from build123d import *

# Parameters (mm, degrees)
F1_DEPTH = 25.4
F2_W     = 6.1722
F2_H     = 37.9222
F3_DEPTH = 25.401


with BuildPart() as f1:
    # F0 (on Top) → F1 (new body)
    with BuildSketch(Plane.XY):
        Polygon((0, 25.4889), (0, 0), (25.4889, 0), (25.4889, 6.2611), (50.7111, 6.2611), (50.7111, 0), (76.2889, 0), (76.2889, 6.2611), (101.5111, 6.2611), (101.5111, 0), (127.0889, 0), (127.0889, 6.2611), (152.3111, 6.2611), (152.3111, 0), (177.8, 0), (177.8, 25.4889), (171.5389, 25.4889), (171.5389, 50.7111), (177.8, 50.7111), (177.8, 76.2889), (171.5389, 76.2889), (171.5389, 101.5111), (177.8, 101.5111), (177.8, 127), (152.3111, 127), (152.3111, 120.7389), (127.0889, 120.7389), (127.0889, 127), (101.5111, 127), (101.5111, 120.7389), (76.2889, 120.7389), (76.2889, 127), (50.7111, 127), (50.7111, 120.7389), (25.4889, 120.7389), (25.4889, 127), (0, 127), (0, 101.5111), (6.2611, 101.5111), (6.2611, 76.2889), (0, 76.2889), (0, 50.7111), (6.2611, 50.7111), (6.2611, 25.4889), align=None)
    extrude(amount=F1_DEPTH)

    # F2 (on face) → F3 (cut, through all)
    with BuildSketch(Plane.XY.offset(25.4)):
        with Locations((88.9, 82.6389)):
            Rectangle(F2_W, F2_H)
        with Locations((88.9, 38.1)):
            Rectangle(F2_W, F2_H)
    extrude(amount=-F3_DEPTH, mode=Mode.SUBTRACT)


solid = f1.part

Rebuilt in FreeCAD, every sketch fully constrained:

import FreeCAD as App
import Part
import Sketcher
Q = App.Units.Quantity


def add_polygon(sketch, points):
    """Adds a closed chain of lines whose ends are joined by coincident constraints."""
    first, n = sketch.GeometryCount, len(points)
    for a, b in zip(points, points[1:] + points[:1]):
        sketch.addGeometry(Part.LineSegment(App.Vector(*a, 0), App.Vector(*b, 0)), False)
    for i in range(n):
        sketch.addConstraint(Sketcher.Constraint("Coincident", first + i, 2, first + (i + 1) % n, 1))

doc = App.newDocument("Part")
params = doc.addObject("Spreadsheet::Sheet", "Params")
for row, (alias, value) in enumerate([
    ("sketch1_width", "0.993 in"),
    ("pad1_length", "1 in"),
    ("sketch2_width", "0.243 in"),
    ("sketch2_height", "1.493 in"),
], start=1):
    params.set(f"A{row}", alias)
    params.set(f"B{row}", "=" + value)
    params.setAlias(f"B{row}", alias)

body = doc.addObject("PartDesign::Body", "Body")

sketch1 = body.newObject("Sketcher::SketchObject", "Sketch")
sketch1.AttachmentSupport = (doc.getObject("XY_Plane"), [""])
sketch1.MapMode = "FlatFace"
add_polygon(sketch1, [(0, 25), (0, 0), (25, 0), (25, 6), (51, 6), (51, 0), (76, 0), (76, 6), (102, 6), (102, 0), (127, 0), (127, 6), (152, 6), (152, 0), (178, 0), (178, 25), (172, 25), (172, 51), (178, 51), (178, 76), (172, 76), (172, 102), (178, 102), (178, 127), (152, 127), (152, 121), (127, 121), (127, 127), (102, 127), (102, 121), (76, 121), (76, 127), (51, 127), (51, 121), (25, 121), (25, 127), (0, 127), (0, 102), (6, 102), (6, 76), (0, 76), (0, 51), (6, 51), (6, 25)])
sketch1.addConstraint([
    Sketcher.Constraint("Vertical", 0),
    Sketcher.Constraint("Horizontal", 1),
    Sketcher.Constraint("Vertical", 2),
    Sketcher.Constraint("Horizontal", 3),
    Sketcher.Constraint("Vertical", 4),
    Sketcher.Constraint("Horizontal", 5),
    Sketcher.Constraint("Vertical", 6),
    Sketcher.Constraint("Horizontal", 7),
    Sketcher.Constraint("Vertical", 8),
    Sketcher.Constraint("Horizontal", 9),
    Sketcher.Constraint("Vertical", 10),
    Sketcher.Constraint("Horizontal", 11),
    Sketcher.Constraint("Vertical", 12),
    Sketcher.Constraint("Horizontal", 13),
    Sketcher.Constraint("Vertical", 14),
    Sketcher.Constraint("Horizontal", 15),
    Sketcher.Constraint("Vertical", 16),
    Sketcher.Constraint("Horizontal", 17),
    Sketcher.Constraint("Vertical", 18),
    Sketcher.Constraint("Horizontal", 19),
    Sketcher.Constraint("Vertical", 20),
    Sketcher.Constraint("Horizontal", 21),
    Sketcher.Constraint("Vertical", 22),
    Sketcher.Constraint("Horizontal", 23),
    Sketcher.Constraint("Vertical", 24),
    Sketcher.Constraint("Horizontal", 25),
    Sketcher.Constraint("Vertical", 26),
    Sketcher.Constraint("Horizontal", 27),
    Sketcher.Constraint("Vertical", 28),
    Sketcher.Constraint("Horizontal", 29),
    Sketcher.Constraint("Vertical", 30),
    Sketcher.Constraint("Horizontal", 31),
    Sketcher.Constraint("Vertical", 32),
    Sketcher.Constraint("Horizontal", 33),
    Sketcher.Constraint("Vertical", 34),
    Sketcher.Constraint("Horizontal", 35),
    Sketcher.Constraint("Vertical", 36),
    Sketcher.Constraint("Horizontal", 37),
    Sketcher.Constraint("Vertical", 38),
    Sketcher.Constraint("Horizontal", 39),
    Sketcher.Constraint("Vertical", 40),
    Sketcher.Constraint("Horizontal", 41),
    Sketcher.Constraint("Vertical", 42),
    Sketcher.Constraint("Horizontal", 43),
    Sketcher.Constraint("Coincident", 0, 2, -1, 1),
    Sketcher.Constraint("PointOnObject", 4, 2, -1),
    Sketcher.Constraint("PointOnObject", 8, 2, -1),
    Sketcher.Constraint("PointOnObject", 12, 2, -1),
    Sketcher.Constraint("PointOnObject", 35, 2, -2),
    Sketcher.Constraint("PointOnObject", 39, 2, -2),
    Sketcher.Constraint("Horizontal", 3, 2, 6, 2),
    Sketcher.Constraint("Horizontal", 7, 2, 10, 2),
    Sketcher.Constraint("Horizontal", 23, 2, 26, 2),
    Sketcher.Constraint("Horizontal", 25, 2, 28, 2),
    Sketcher.Constraint("Horizontal", 27, 2, 30, 2),
    Sketcher.Constraint("Horizontal", 29, 2, 32, 2),
    Sketcher.Constraint("Horizontal", 31, 2, 34, 2),
    Sketcher.Constraint("Horizontal", 21, 2, 36, 2),
    Sketcher.Constraint("Horizontal", 19, 2, 38, 2),
    Sketcher.Constraint("Horizontal", 17, 2, 40, 2),
    Sketcher.Constraint("Horizontal", 15, 2, 42, 2),
    Sketcher.Constraint("Vertical", 14, 2, 17, 2),
    Sketcher.Constraint("Vertical", 16, 2, 19, 2),
    Sketcher.Constraint("Vertical", 18, 2, 21, 2),
    Sketcher.Constraint("Vertical", 12, 2, 23, 2),
    Sketcher.Constraint("Vertical", 10, 2, 25, 2),
    Sketcher.Constraint("Vertical", 8, 2, 27, 2),
    Sketcher.Constraint("Vertical", 6, 2, 29, 2),
    Sketcher.Constraint("Vertical", 4, 2, 31, 2),
    Sketcher.Constraint("Vertical", 2, 2, 33, 2),
    Sketcher.Constraint("Vertical", 38, 2, 41, 2),
    Sketcher.Constraint("Equal", 3, 7),
    Sketcher.Constraint("Equal", 5, 9),
    Sketcher.Constraint("Equal", 7, 11),
    Sketcher.Constraint("Equal", 1, 13),
    Sketcher.Constraint("Equal", 21, 37),
    Sketcher.Constraint("Equal", 35, 0),
    Sketcher.Constraint("Equal", 43, 2),
    Sketcher.Constraint("Equal", 33, 16),
    Sketcher.Constraint("Equal", 31, 18),
    Sketcher.Constraint("Equal", 16, 20),
    Sketcher.Constraint("Equal", 14, 22),
    Sketcher.Constraint("Equal", 12, 24),
    Sketcher.Constraint("DistanceX", -1, 1, 13, 2, Q("7 in")),
    Sketcher.Constraint("DistanceY", -1, 1, 22, 2, Q("5 in")),
    Sketcher.Constraint("DistanceX", 3, 1, 3, 2, Q("0.993 in")),
    Sketcher.Constraint("DistanceX", 10, 2, 15, 2, Q("1.75 in")),
])
sketch1.setExpression("Constraints[129]", "Params.sketch1_width")
pad1 = body.newObject("PartDesign::Pad", "Pad")
pad1.Profile = sketch1
pad1.setExpression("Length", "Params.pad1_length")

sketch2 = body.newObject("Sketcher::SketchObject", "Sketch001")
sketch2.AttachmentSupport = (doc.getObject("XY_Plane"), [""])
sketch2.MapMode = "FlatFace"
sketch2.AttachmentOffset = App.Placement(App.Vector(0, 0, 1 * 25.4), App.Rotation())
add_polygon(sketch2, [(86, 102), (86, 64), (92, 64), (92, 102)])
add_polygon(sketch2, [(86, 57), (86, 19), (92, 19), (92, 57)])
sketch2.addConstraint([
    Sketcher.Constraint("Vertical", 0),
    Sketcher.Constraint("Horizontal", 1),
    Sketcher.Constraint("Vertical", 2),
    Sketcher.Constraint("Horizontal", 3),
    Sketcher.Constraint("Vertical", 4),
    Sketcher.Constraint("Horizontal", 5),
    Sketcher.Constraint("Vertical", 6),
    Sketcher.Constraint("Horizontal", 7),
    Sketcher.Constraint("Vertical", 3, 2, 4, 2),
    Sketcher.Constraint("Vertical", 2, 2, 5, 2),
    Sketcher.Constraint("Equal", 2, 4),
    Sketcher.Constraint("DistanceY", -1, 1, 2, 2, Q("4 in")),
    Sketcher.Constraint("DistanceX", 1, 1, 1, 2, Q("0.243 in")),
    Sketcher.Constraint("DistanceY", 0, 2, 0, 1, Q("1.493 in")),
    Sketcher.Constraint("DistanceX", -1, 1, 0, 2, Q("3.3785 in")),
    Sketcher.Constraint("DistanceY", -1, 1, 4, 2, Q("0.7535 in")),
])
sketch2.setExpression("Constraints[20]", "Params.sketch2_width")
sketch2.setExpression("Constraints[21]", "Params.sketch2_height")
pocket1 = body.newObject("PartDesign::Pocket", "Pocket")
pocket1.Profile = sketch2
pocket1.Type = "ThroughAll"

doc.recompute()
